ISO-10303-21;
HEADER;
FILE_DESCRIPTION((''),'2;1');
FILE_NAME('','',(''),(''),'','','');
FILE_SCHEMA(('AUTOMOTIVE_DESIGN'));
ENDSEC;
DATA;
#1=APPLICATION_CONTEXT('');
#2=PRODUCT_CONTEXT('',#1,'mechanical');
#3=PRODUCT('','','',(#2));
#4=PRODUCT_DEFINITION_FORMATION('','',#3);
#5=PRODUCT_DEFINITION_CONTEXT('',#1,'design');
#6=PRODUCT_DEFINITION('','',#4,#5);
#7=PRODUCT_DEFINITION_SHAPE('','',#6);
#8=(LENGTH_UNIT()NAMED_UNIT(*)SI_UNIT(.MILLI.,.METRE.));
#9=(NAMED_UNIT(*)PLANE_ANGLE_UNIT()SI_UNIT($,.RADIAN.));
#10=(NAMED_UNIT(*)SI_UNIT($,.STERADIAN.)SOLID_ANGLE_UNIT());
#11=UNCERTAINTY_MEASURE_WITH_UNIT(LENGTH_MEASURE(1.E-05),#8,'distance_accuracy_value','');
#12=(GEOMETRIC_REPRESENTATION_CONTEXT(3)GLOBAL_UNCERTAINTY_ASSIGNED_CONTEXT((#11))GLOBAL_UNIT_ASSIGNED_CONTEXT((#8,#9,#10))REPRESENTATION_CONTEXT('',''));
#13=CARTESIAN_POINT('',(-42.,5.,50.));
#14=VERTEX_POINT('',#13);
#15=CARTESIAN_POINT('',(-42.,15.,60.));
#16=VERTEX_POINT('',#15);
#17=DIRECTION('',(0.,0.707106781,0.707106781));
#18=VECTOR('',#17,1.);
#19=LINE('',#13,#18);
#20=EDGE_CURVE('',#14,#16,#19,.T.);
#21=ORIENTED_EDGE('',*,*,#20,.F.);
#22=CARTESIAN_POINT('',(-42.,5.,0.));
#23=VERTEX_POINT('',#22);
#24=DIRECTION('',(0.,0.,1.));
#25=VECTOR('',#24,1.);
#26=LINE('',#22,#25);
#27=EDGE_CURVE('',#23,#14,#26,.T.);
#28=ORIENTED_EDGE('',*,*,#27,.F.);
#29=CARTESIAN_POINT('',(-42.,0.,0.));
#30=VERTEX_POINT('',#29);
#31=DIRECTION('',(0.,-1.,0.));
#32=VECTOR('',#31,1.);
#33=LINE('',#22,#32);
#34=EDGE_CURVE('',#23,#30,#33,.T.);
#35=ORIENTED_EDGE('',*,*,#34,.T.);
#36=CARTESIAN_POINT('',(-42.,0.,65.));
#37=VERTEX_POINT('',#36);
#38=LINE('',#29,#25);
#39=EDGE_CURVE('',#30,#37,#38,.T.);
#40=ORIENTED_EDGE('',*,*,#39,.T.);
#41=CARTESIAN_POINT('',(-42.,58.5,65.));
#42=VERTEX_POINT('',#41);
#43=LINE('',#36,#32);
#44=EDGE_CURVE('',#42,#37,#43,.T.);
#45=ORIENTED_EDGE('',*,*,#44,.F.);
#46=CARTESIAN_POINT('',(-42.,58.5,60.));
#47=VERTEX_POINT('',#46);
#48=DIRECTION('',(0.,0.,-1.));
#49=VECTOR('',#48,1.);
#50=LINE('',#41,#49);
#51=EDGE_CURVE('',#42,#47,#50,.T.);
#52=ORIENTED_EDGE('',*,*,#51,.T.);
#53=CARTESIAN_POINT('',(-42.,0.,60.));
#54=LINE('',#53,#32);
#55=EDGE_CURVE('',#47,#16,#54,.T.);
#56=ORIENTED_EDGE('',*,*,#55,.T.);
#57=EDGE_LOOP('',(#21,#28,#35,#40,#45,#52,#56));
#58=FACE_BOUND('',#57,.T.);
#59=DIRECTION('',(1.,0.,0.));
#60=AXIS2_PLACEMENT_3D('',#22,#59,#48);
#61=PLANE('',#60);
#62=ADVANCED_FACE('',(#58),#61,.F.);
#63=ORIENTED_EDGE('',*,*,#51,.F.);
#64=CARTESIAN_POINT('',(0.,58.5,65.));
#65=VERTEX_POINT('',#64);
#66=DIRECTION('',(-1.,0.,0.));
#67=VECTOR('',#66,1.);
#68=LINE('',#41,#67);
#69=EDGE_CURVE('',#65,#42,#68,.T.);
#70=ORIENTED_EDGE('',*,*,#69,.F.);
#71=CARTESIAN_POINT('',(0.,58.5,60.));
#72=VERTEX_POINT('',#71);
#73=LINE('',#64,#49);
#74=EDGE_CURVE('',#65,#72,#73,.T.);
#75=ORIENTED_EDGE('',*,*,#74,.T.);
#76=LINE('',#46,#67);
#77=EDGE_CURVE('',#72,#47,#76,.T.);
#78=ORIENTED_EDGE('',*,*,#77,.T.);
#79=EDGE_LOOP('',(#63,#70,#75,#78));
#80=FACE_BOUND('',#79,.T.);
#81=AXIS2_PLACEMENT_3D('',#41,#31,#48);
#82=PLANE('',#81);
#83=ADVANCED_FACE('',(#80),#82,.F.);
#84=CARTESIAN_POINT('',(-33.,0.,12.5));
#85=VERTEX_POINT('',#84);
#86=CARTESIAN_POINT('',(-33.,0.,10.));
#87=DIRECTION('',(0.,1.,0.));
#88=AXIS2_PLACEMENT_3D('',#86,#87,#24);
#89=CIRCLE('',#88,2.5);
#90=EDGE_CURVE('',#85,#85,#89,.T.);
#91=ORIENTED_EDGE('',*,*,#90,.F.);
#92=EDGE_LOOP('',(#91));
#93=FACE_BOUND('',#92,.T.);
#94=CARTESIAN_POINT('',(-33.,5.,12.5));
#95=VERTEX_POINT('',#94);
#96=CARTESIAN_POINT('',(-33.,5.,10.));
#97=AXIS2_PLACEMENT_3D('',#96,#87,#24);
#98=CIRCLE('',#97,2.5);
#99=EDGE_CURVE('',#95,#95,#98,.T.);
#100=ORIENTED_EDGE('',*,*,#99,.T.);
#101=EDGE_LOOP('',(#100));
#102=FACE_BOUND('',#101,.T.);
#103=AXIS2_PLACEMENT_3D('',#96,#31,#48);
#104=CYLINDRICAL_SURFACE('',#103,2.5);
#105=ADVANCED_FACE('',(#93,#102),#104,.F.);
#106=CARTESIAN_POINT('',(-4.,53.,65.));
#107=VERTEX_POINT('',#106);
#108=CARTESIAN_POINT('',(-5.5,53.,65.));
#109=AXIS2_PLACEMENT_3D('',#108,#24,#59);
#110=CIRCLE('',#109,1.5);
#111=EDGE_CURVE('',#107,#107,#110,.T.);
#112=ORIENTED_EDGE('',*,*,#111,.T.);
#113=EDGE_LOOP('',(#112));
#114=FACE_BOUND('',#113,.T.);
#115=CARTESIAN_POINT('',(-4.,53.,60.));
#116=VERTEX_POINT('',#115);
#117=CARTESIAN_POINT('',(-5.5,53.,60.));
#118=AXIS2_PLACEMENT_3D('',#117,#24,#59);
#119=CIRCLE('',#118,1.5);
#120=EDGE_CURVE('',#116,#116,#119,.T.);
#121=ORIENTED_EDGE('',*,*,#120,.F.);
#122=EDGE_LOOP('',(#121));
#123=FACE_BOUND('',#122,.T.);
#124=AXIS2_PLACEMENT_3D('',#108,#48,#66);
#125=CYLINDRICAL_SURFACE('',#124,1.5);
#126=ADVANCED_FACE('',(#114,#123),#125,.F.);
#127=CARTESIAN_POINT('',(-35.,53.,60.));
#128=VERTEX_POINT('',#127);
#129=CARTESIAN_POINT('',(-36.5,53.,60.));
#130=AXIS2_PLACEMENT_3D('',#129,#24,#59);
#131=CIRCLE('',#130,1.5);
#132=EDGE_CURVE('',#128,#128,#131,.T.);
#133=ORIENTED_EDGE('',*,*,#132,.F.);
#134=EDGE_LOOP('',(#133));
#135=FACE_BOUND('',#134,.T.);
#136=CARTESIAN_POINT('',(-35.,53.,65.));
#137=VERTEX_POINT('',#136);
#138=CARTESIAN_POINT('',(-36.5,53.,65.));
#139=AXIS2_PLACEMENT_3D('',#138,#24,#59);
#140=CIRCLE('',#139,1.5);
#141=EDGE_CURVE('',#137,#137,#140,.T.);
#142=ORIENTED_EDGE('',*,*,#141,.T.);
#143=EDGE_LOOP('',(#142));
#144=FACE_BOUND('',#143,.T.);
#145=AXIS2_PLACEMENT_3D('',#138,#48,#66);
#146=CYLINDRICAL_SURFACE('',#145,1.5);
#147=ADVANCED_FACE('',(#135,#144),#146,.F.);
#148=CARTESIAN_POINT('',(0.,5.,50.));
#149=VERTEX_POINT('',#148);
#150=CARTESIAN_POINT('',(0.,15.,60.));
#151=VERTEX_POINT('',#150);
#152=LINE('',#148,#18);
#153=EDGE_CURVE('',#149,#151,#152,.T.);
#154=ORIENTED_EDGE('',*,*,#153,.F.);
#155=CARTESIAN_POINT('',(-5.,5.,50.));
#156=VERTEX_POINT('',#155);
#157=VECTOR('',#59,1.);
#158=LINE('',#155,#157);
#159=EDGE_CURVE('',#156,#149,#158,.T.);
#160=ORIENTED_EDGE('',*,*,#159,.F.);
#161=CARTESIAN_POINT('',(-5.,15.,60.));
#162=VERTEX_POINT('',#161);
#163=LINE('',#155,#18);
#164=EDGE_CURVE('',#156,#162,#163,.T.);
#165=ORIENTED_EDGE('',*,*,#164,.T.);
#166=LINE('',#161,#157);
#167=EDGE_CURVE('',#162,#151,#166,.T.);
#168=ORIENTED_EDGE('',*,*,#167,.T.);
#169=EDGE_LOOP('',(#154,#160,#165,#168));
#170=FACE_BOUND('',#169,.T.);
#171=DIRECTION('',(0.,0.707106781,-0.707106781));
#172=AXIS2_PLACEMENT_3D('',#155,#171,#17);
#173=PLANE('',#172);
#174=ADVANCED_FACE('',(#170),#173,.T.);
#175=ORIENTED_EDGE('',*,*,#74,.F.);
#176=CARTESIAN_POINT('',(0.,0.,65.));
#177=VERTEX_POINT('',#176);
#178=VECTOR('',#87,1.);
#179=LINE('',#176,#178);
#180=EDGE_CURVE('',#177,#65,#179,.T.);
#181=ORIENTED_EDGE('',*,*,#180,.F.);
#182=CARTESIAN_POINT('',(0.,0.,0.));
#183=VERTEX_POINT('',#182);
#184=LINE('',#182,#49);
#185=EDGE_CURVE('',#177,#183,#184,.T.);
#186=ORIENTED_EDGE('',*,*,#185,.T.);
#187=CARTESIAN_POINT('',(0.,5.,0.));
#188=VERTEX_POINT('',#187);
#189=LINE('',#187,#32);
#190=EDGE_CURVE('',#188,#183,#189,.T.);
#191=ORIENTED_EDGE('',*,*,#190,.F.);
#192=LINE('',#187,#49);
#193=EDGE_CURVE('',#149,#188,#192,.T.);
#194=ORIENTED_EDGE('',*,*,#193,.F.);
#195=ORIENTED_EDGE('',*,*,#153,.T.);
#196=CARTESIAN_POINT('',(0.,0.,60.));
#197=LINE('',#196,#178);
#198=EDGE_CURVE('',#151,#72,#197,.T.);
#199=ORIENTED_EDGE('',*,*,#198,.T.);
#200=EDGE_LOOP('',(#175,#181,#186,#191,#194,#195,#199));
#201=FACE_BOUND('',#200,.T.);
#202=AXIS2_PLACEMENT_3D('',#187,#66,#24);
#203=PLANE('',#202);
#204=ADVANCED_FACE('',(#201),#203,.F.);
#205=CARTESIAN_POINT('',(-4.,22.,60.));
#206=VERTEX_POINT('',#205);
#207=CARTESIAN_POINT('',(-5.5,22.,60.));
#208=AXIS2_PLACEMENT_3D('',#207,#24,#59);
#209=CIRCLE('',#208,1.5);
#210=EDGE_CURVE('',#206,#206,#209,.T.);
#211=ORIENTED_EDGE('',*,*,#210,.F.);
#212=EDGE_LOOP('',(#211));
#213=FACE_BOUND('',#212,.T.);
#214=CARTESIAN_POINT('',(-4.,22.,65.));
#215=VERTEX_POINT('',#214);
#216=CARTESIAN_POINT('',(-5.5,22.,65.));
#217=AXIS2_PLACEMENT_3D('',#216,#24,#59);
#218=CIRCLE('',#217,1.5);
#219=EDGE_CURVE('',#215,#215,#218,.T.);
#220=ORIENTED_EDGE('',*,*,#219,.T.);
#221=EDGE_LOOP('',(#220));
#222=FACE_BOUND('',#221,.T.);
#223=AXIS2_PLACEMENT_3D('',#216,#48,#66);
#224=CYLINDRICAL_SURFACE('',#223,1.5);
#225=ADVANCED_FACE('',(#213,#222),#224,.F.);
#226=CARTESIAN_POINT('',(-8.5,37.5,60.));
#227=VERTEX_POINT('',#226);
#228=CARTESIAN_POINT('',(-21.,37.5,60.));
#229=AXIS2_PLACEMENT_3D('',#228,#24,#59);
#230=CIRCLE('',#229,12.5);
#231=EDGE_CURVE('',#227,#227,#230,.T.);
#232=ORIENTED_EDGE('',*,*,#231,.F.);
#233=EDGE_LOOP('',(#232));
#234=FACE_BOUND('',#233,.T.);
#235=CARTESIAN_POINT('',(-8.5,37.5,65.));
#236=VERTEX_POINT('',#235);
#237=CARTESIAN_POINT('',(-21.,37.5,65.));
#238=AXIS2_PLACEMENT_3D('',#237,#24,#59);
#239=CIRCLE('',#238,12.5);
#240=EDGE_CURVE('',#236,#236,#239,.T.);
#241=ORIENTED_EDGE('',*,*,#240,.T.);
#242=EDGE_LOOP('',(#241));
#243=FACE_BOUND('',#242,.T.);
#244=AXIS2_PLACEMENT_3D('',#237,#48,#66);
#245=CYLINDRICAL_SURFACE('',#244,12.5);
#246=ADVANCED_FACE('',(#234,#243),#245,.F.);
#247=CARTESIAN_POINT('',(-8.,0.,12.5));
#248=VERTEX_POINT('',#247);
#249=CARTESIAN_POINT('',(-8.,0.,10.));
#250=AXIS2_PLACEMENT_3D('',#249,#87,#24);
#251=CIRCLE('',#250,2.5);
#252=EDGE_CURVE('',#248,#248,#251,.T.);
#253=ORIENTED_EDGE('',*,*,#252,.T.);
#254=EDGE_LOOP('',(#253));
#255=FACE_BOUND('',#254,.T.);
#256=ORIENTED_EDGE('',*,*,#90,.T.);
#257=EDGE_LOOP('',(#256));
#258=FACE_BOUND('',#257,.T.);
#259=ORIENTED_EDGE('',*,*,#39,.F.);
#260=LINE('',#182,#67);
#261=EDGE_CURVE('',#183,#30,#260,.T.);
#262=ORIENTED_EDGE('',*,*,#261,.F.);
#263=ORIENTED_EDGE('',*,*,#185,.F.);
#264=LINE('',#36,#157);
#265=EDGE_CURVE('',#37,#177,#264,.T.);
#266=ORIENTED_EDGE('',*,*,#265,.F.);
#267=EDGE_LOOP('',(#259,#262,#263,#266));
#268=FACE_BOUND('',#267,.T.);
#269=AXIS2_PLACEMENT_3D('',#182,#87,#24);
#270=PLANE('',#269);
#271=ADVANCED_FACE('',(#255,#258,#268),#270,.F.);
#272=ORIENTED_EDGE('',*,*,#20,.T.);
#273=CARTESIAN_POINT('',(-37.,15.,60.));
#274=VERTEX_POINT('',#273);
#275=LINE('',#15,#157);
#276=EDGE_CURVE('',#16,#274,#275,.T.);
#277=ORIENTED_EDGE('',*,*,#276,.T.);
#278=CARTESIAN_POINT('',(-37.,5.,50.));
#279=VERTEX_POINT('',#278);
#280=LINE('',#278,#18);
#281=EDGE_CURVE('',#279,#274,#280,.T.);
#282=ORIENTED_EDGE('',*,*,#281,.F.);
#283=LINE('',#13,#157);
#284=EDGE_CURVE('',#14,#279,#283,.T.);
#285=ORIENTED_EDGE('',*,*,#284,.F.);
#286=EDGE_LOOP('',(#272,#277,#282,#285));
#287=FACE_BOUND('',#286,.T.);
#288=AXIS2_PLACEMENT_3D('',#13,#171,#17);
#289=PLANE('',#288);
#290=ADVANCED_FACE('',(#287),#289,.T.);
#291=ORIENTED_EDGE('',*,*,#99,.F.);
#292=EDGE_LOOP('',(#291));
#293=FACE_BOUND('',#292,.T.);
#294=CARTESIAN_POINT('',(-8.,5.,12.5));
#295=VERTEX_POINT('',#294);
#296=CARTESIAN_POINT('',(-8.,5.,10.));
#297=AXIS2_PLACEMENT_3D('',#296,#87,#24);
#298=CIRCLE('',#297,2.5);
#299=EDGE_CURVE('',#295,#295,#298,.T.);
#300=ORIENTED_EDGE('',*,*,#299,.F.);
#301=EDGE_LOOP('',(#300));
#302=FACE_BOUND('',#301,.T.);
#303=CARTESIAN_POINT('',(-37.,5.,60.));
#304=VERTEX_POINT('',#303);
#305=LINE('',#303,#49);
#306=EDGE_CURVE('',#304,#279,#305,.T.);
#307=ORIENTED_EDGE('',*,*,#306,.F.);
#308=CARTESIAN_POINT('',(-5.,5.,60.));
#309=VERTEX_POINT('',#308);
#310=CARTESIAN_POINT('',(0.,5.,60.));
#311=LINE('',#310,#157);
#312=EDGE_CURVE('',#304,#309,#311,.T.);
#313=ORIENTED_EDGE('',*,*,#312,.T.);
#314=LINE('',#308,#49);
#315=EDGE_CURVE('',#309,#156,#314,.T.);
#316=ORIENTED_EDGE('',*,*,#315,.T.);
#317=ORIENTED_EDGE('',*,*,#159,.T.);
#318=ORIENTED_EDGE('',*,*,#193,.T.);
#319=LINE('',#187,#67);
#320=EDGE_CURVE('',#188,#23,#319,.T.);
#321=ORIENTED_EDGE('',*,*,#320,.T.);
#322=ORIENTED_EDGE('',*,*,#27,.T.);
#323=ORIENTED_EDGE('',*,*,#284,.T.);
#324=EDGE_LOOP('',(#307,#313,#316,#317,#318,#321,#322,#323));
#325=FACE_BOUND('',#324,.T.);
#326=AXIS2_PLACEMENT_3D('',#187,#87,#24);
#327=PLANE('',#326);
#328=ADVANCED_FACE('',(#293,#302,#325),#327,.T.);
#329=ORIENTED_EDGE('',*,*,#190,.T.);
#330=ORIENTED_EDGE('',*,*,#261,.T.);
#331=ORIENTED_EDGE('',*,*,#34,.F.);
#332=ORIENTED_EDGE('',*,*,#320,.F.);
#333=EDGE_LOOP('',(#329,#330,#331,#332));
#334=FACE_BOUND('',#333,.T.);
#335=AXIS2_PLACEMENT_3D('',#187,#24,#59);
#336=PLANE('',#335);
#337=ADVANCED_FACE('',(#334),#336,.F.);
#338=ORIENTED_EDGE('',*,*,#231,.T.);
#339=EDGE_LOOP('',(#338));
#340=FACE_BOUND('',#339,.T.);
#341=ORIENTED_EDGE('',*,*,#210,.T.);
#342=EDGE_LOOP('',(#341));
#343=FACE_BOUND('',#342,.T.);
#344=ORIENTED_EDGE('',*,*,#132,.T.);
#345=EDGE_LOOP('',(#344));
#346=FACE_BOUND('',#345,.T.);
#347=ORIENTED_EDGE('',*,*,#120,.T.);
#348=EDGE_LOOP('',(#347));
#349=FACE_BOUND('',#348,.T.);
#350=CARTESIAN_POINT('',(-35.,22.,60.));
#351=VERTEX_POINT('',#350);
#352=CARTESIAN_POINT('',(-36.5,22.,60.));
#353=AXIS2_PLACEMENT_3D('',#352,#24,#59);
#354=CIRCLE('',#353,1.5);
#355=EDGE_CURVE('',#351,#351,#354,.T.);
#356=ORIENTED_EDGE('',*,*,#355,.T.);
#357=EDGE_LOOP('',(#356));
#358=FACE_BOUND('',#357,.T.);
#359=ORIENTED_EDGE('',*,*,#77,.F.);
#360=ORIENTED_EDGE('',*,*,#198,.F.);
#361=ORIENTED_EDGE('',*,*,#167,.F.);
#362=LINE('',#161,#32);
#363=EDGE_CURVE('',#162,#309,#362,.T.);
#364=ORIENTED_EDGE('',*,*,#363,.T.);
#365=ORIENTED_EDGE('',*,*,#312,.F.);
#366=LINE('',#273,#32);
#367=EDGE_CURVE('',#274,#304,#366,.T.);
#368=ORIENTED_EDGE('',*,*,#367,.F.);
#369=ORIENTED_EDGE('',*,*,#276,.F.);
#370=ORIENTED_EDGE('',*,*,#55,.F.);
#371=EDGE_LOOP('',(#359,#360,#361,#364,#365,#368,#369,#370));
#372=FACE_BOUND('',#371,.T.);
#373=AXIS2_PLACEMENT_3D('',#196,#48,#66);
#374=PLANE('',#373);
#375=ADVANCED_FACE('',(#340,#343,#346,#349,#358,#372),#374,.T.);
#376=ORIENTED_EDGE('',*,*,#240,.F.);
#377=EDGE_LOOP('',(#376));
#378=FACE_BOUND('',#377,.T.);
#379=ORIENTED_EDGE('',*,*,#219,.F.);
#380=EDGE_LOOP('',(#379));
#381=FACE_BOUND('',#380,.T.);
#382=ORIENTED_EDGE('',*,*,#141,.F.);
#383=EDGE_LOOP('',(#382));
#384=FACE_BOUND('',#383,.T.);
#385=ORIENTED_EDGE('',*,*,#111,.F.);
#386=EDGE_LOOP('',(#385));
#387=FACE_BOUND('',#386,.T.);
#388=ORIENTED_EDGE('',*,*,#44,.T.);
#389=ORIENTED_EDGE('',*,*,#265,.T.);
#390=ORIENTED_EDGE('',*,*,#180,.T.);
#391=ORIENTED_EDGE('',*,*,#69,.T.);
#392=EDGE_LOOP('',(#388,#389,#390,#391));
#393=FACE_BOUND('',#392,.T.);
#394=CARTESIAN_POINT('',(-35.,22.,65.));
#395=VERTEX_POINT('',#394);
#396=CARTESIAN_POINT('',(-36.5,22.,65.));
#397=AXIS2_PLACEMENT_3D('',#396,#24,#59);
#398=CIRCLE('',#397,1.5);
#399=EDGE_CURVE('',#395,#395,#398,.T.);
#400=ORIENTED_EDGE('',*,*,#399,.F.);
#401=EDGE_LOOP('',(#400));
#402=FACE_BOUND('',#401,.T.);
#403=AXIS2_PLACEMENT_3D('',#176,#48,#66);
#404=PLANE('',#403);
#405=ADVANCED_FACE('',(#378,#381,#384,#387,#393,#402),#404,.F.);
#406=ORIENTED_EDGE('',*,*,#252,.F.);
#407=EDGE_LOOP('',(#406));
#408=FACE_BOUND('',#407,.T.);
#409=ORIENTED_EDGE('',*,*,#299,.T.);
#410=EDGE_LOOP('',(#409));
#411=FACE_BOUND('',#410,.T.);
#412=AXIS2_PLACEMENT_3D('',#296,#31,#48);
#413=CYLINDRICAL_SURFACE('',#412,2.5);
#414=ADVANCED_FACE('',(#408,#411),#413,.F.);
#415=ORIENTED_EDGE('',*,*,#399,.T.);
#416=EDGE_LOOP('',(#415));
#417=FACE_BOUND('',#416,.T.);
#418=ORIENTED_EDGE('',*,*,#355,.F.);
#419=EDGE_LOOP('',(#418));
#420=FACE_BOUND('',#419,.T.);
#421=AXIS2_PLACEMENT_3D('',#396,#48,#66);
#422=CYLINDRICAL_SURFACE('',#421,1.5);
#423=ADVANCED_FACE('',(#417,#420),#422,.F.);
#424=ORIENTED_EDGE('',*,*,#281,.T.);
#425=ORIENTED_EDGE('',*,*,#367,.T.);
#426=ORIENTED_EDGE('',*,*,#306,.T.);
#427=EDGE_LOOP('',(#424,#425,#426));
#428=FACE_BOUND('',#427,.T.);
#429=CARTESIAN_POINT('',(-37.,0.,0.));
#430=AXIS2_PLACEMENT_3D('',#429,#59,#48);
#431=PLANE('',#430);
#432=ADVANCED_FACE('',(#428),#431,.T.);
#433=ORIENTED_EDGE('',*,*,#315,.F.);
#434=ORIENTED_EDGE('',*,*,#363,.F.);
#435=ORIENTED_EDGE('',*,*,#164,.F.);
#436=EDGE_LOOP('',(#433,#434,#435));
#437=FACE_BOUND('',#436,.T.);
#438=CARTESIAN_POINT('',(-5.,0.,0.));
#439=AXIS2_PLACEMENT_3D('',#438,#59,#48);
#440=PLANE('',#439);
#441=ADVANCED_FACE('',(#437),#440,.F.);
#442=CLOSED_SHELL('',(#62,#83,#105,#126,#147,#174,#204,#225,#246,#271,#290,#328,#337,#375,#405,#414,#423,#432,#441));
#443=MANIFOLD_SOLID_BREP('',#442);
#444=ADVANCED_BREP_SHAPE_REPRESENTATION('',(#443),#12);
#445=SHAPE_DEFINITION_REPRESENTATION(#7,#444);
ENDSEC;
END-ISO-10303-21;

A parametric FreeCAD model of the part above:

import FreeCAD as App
import Part
import Sketcher
Q = App.Units.Quantity

doc = App.newDocument("Part")
body = doc.addObject("PartDesign::Body", "Body")

# Sketch on XZ plane
sketch1 = body.newObject("Sketcher::SketchObject", "Sketch")
sketch1.AttachmentSupport = (doc.getObject("XZ_Plane"), [""])
sketch1.MapMode = "FlatFace"
sketch1.addGeometry([
    Part.LineSegment(App.Vector(-42, 60, 0), App.Vector(0, 60, 0)),  # 0
    Part.LineSegment(App.Vector(0, 60, 0), App.Vector(0, 0, 0)),  # 1
    Part.LineSegment(App.Vector(0, 0, 0), App.Vector(-42, 0, 0)),  # 2
    Part.LineSegment(App.Vector(-42, 0, 0), App.Vector(-42, 60, 0)),  # 3
    Part.Circle(App.Vector(-8, 10, 0), App.Vector(0, 0, 1), 2.5),  # 4
    Part.Circle(App.Vector(-33, 10, 0), App.Vector(0, 0, 1), 2.5),  # 5
], False)
sketch1.addConstraint([
    Sketcher.Constraint("Coincident", 0, 2, 1, 1),
    Sketcher.Constraint("Coincident", 1, 2, 2, 1),
    Sketcher.Constraint("Coincident", 2, 2, 3, 1),
    Sketcher.Constraint("Coincident", 3, 2, 0, 1),
    Sketcher.Constraint("Horizontal", 0),
    Sketcher.Constraint("Vertical", 1),
    Sketcher.Constraint("Horizontal", 2),
    Sketcher.Constraint("Vertical", 3),
    Sketcher.Constraint("Coincident", 1, 2, -1, 1),
    Sketcher.Constraint("Equal", 4, 5),
    Sketcher.Constraint("Horizontal", 4, 3, 5, 3),
    Sketcher.Constraint("Diameter", 4, Q("5 mm")),
    Sketcher.Constraint("DistanceX", 0, 1, 0, 2, Q("42 mm")),
    Sketcher.Constraint("DistanceY", 1, 2, 1, 1, Q("60 mm")),
    Sketcher.Constraint("DistanceX", 4, 3, -1, 1, Q("8 mm")),
    Sketcher.Constraint("DistanceY", -1, 1, 4, 3, Q("10 mm")),
    Sketcher.Constraint("DistanceX", 5, 3, -1, 1, Q("33 mm")),
])
pad1 = body.newObject("PartDesign::Pad", "Pad")
pad1.Profile = sketch1
pad1.Length = 5
pad1.Reversed = True

# Sketch on XY plane
sketch2 = body.newObject("Sketcher::SketchObject", "Sketch001")
sketch2.AttachmentSupport = (doc.getObject("XY_Plane"), [""])
sketch2.MapMode = "FlatFace"
sketch2.AttachmentOffset = App.Placement(App.Vector(0, 0, 60), App.Rotation())
sketch2.addGeometry([
    Part.LineSegment(App.Vector(-42, 58.5, 0), App.Vector(-42, 0, 0)),  # 0
    Part.LineSegment(App.Vector(-42, 0, 0), App.Vector(0, 0, 0)),  # 1
    Part.LineSegment(App.Vector(0, 0, 0), App.Vector(0, 58.5, 0)),  # 2
    Part.LineSegment(App.Vector(0, 58.5, 0), App.Vector(-42, 58.5, 0)),  # 3
    Part.Circle(App.Vector(-36.5, 22, 0), App.Vector(0, 0, 1), 1.5),  # 4
    Part.Circle(App.Vector(-5.5, 22, 0), App.Vector(0, 0, 1), 1.5),  # 5
    Part.Circle(App.Vector(-36.5, 53, 0), App.Vector(0, 0, 1), 1.5),  # 6
    Part.Circle(App.Vector(-21, 37.5, 0), App.Vector(0, 0, 1), 12.5),  # 7
    Part.Circle(App.Vector(-5.5, 53, 0), App.Vector(0, 0, 1), 1.5),  # 8
], False)
sketch2.addConstraint([
    Sketcher.Constraint("Coincident", 0, 2, 1, 1),
    Sketcher.Constraint("Coincident", 1, 2, 2, 1),
    Sketcher.Constraint("Coincident", 2, 2, 3, 1),
    Sketcher.Constraint("Coincident", 3, 2, 0, 1),
    Sketcher.Constraint("Vertical", 0),
    Sketcher.Constraint("Horizontal", 1),
    Sketcher.Constraint("Vertical", 2),
    Sketcher.Constraint("Horizontal", 3),
    Sketcher.Constraint("Coincident", 1, 2, -1, 1),
    Sketcher.Constraint("Equal", 4, 5),
    Sketcher.Constraint("Equal", 5, 6),
    Sketcher.Constraint("Equal", 6, 8),
    Sketcher.Constraint("Horizontal", 4, 3, 5, 3),
    Sketcher.Constraint("Horizontal", 6, 3, 8, 3),
    Sketcher.Constraint("Vertical", 4, 3, 6, 3),
    Sketcher.Constraint("Vertical", 5, 3, 8, 3),
    Sketcher.Constraint("Diameter", 4, Q("3 mm")),
    Sketcher.Constraint("Diameter", 7, Q("25 mm")),
    Sketcher.Constraint("DistanceX", 1, 1, 1, 2, Q("42 mm")),
    Sketcher.Constraint("DistanceY", 0, 2, 0, 1, Q("58.5 mm")),
    Sketcher.Constraint("DistanceY", -1, 1, 4, 3, Q("22 mm")),
    Sketcher.Constraint("DistanceY", -1, 1, 6, 3, Q("53 mm")),
    Sketcher.Constraint("DistanceX", 7, 3, -1, 1, Q("21 mm")),
    Sketcher.Constraint("DistanceX", 4, 3, 5, 3, Q("31 mm")),
    Sketcher.Constraint("DistanceY", 7, 3, 2, 2, Q("21 mm")),
    Sketcher.Constraint("DistanceX", 4, 3, -1, 1, Q("36.5 mm")),
])
pad2 = body.newObject("PartDesign::Pad", "Pad001")
pad2.Profile = sketch2
pad2.Length = 5

# Sketch on YZ plane
sketch3 = body.newObject("Sketcher::SketchObject", "Sketch002")
sketch3.AttachmentSupport = (doc.getObject("YZ_Plane"), [""])
sketch3.MapMode = "FlatFace"
sketch3.addGeometry([
    Part.LineSegment(App.Vector(15, 60, 0), App.Vector(5, 60, 0)),
    Part.LineSegment(App.Vector(5, 60, 0), App.Vector(5, 50, 0)),
    Part.LineSegment(App.Vector(5, 50, 0), App.Vector(15, 60, 0)),
], False)
sketch3.addConstraint([
    Sketcher.Constraint("Coincident", 0, 2, 1, 1),
    Sketcher.Constraint("Coincident", 1, 2, 2, 1),
    Sketcher.Constraint("Coincident", 2, 2, 0, 1),
    Sketcher.Constraint("Horizontal", 0),
    Sketcher.Constraint("Vertical", 1),
    Sketcher.Constraint("Equal", 0, 1),
    Sketcher.Constraint("DistanceX", 0, 2, 0, 1, Q("10 mm")),
    Sketcher.Constraint("DistanceX", -1, 1, 0, 2, Q("5 mm")),
    Sketcher.Constraint("DistanceY", -1, 1, 0, 2, Q("60 mm")),
])
pad3 = body.newObject("PartDesign::Pad", "Pad002")
pad3.Profile = sketch3
pad3.Length = 5
pad3.Reversed = True
doc.recompute()

linearpattern = body.newObject("PartDesign::LinearPattern", "LinearPattern")
linearpattern.Originals = [pad3]
linearpattern.Direction = (doc.getObject("X_Axis"), [""])
linearpattern.Mode = "offset"
linearpattern.Offset = 37
linearpattern.Occurrences = 2
linearpattern.Reversed = True
body.Tip = linearpattern

doc.recompute()
